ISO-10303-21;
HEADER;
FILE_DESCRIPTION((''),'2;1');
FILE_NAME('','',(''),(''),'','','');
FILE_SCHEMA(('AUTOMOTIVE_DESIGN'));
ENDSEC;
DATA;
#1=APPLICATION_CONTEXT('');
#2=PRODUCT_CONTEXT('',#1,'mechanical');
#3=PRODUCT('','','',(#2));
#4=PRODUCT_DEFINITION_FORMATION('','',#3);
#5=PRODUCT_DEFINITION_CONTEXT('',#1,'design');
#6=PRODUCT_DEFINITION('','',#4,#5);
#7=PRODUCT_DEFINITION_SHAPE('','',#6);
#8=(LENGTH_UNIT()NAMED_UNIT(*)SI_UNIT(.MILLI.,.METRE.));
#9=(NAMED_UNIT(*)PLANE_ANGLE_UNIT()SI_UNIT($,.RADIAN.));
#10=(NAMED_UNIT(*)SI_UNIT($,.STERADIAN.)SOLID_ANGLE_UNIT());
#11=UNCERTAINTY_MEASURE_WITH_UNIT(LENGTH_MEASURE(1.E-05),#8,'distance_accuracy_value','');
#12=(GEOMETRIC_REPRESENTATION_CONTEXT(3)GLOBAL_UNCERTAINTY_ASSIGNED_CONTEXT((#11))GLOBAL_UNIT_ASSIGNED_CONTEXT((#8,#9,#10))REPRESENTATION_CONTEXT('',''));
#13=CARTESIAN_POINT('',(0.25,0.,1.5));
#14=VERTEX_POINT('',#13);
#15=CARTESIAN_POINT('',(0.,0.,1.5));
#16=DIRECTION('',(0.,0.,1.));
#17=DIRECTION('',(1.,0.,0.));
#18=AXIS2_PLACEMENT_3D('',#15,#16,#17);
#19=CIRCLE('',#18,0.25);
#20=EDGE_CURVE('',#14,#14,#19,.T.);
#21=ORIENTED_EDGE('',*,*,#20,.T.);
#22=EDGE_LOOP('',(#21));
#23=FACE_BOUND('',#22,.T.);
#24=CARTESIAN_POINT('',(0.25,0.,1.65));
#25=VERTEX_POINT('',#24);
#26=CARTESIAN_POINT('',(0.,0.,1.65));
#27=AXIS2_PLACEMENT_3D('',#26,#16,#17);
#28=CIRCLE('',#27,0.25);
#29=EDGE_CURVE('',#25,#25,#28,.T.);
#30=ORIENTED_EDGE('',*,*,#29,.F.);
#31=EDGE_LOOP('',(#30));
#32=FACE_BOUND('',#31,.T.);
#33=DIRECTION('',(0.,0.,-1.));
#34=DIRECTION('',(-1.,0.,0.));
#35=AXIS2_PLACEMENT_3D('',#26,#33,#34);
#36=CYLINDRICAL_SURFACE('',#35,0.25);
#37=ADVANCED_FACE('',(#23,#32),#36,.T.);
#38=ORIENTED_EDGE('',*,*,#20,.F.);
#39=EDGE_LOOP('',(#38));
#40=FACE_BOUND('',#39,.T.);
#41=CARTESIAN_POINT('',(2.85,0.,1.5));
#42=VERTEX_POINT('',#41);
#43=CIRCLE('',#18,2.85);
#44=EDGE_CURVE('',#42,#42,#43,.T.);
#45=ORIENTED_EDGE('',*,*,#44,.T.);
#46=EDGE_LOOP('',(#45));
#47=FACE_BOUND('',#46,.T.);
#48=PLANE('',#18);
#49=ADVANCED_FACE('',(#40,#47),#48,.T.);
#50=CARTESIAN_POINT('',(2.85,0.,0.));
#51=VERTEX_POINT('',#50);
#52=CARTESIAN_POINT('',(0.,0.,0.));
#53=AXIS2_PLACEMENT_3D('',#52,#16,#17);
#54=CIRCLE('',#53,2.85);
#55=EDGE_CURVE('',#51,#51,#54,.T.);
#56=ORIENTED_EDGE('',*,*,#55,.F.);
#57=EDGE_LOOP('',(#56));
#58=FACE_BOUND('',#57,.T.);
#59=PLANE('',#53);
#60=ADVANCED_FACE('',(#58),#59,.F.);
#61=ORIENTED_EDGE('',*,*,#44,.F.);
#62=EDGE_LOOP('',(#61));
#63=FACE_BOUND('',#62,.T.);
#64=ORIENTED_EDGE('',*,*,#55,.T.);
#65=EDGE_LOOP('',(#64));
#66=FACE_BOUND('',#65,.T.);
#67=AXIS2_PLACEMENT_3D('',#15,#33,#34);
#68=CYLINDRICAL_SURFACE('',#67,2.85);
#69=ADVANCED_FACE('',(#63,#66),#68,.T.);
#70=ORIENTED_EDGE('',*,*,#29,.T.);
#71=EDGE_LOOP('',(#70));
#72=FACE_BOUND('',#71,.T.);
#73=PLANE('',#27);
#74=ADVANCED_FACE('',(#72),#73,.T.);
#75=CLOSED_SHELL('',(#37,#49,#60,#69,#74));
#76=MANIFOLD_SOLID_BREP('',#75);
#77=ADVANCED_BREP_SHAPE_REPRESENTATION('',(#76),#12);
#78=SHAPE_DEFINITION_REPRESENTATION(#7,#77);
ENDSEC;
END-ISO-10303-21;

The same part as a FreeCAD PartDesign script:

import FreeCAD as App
import Part
import Sketcher
from FreeCAD import Vector

doc = App.newDocument("Part")
body = doc.addObject("PartDesign::Body", "Body")

sketch1 = body.newObject("Sketcher::SketchObject", "Sketch")
sketch1.AttachmentSupport = (doc.getObject("XY_Plane"), [""])
sketch1.MapMode = "FlatFace"
sketch1.addGeometry(Part.Circle(Vector(0, 0, 0), Vector(0, 0, 1), 2.9), False)
sketch1.addConstraint([
    Sketcher.Constraint("Coincident", 0, 3, -1, 1),
    Sketcher.Constraint("Diameter", 0, 5.7),
])
pad1 = body.newObject("PartDesign::Pad", "Pad")
pad1.Profile = sketch1
pad1.Length = 1.5

sketch2 = body.newObject("Sketcher::SketchObject", "Sketch001")
sketch2.AttachmentSupport = (doc.getObject("XY_Plane"), [""])
sketch2.MapMode = "FlatFace"
sketch2.AttachmentOffset = App.Placement(Vector(0, 0, 1.5), App.Rotation())
sketch2.addGeometry(Part.Circle(Vector(0, 0, 0), Vector(0, 0, 1), 0.25), False)
sketch2.addConstraint([
    Sketcher.Constraint("Coincident", 0, 3, -1, 1),
    Sketcher.Constraint("Diameter", 0, 0.5),
])
pad2 = body.newObject("PartDesign::Pad", "Pad001")
pad2.Profile = sketch2
pad2.Length = 0.15

doc.recompute()
